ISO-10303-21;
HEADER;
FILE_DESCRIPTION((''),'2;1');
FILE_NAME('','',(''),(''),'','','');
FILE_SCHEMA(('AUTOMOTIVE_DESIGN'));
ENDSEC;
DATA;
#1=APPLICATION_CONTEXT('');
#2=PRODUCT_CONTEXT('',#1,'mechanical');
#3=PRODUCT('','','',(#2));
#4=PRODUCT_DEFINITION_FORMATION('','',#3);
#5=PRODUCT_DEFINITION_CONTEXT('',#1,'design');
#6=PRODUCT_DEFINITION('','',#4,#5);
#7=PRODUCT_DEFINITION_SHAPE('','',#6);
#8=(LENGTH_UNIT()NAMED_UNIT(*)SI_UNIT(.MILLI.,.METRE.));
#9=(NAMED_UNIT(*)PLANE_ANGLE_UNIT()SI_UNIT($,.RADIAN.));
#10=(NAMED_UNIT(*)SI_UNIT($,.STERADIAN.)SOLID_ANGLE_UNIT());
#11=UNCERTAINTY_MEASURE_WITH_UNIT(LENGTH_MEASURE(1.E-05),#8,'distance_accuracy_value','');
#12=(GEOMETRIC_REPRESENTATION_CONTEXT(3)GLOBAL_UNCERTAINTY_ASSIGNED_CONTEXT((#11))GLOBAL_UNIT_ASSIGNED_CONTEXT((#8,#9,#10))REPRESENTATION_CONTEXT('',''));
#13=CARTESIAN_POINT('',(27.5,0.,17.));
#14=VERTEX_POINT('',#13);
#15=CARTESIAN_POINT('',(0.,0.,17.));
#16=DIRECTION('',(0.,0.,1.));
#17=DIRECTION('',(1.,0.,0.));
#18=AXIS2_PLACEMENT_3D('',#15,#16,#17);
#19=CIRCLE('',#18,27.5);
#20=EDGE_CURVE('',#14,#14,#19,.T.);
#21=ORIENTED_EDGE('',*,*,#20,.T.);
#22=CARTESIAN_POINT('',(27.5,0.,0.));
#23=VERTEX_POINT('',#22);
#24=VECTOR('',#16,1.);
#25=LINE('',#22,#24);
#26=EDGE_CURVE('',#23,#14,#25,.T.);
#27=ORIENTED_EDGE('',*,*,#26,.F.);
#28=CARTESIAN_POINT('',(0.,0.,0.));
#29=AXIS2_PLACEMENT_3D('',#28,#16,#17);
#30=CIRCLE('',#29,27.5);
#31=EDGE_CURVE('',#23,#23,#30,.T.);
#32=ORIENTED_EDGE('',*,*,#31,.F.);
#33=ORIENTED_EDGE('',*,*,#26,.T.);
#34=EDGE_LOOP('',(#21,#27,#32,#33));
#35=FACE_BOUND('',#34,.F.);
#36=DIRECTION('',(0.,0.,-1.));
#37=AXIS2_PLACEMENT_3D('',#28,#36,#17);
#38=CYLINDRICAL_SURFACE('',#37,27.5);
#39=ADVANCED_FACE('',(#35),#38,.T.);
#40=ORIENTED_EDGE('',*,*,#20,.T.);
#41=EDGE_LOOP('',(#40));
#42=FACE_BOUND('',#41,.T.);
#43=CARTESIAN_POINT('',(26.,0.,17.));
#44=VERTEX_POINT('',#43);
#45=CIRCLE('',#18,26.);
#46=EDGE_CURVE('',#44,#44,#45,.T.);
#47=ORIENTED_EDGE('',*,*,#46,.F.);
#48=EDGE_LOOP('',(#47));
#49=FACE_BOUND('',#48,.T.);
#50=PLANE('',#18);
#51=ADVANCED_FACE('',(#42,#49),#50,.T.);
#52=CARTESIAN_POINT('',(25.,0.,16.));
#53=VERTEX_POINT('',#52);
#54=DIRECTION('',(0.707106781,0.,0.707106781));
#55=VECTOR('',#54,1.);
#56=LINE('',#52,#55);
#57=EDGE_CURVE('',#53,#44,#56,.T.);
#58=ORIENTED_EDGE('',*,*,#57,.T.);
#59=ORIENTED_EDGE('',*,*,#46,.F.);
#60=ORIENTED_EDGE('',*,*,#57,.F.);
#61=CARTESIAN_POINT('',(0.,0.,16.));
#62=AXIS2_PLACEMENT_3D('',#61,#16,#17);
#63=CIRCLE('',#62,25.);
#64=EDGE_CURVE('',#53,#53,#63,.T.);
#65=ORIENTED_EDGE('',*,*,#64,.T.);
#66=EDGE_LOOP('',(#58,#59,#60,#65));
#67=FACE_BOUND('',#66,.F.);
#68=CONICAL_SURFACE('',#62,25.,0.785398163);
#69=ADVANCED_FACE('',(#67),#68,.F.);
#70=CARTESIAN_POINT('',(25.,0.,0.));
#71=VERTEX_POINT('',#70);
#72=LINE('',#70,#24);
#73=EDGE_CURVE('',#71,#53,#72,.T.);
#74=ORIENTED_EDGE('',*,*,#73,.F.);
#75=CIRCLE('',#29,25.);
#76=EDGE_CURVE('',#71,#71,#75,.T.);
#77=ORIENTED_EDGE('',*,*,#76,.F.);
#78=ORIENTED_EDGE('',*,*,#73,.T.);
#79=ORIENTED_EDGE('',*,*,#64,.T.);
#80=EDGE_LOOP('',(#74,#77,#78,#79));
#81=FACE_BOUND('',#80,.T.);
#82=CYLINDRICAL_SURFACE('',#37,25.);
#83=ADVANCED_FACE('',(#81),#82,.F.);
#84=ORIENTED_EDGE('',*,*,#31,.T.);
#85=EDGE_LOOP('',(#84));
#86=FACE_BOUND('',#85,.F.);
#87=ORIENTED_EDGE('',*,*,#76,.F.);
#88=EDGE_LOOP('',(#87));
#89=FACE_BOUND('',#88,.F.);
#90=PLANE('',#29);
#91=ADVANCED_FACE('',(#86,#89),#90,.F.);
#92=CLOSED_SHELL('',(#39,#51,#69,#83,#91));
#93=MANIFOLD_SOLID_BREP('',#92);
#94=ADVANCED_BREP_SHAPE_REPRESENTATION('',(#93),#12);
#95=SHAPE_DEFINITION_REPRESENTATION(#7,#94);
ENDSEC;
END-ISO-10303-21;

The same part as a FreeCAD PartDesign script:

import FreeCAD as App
import Part
import Sketcher
from FreeCAD import Vector


def edges_at(feature, points):
    """Names of the edges that pass closest to the given points."""
    edges = feature.Shape.Edges
    near = lambda p: min(range(len(edges)), key=lambda i: edges[i].distToShape(Part.Vertex(*p))[0])
    return sorted({f"Edge{near(p) + 1}" for p in points})

doc = App.newDocument("Part")
body = doc.addObject("PartDesign::Body", "Body")

# Sketch on XY plane
sketch1 = body.newObject("Sketcher::SketchObject", "Sketch")
sketch1.AttachmentSupport = (doc.getObject("XY_Plane"), [""])
sketch1.MapMode = "FlatFace"
sketch1.addGeometry(Part.Circle(Vector(0, 0, 0), Vector(0, 0, 1), 28), False)
sketch1.addGeometry(Part.Circle(Vector(0, 0, 0), Vector(0, 0, 1), 25), False)
sketch1.addConstraint(Sketcher.Constraint("Coincident", 0, 3, -1, 1))
sketch1.addConstraint(Sketcher.Constraint("Coincident", 1, 3, -1, 1))
sketch1.addConstraint(Sketcher.Constraint("Diameter", 0, 55.0))
sketch1.addConstraint(Sketcher.Constraint("Diameter", 1, 50.0))
pad1 = body.newObject("PartDesign::Pad", "Pad")
pad1.Profile = sketch1
pad1.Length = 17
doc.recompute()

chamfer = body.newObject("PartDesign::Chamfer", "Chamfer")
chamfer.Base = (pad1, edges_at(pad1, [(-25, 0, 17)]))
chamfer.Size = 1

doc.recompute()
